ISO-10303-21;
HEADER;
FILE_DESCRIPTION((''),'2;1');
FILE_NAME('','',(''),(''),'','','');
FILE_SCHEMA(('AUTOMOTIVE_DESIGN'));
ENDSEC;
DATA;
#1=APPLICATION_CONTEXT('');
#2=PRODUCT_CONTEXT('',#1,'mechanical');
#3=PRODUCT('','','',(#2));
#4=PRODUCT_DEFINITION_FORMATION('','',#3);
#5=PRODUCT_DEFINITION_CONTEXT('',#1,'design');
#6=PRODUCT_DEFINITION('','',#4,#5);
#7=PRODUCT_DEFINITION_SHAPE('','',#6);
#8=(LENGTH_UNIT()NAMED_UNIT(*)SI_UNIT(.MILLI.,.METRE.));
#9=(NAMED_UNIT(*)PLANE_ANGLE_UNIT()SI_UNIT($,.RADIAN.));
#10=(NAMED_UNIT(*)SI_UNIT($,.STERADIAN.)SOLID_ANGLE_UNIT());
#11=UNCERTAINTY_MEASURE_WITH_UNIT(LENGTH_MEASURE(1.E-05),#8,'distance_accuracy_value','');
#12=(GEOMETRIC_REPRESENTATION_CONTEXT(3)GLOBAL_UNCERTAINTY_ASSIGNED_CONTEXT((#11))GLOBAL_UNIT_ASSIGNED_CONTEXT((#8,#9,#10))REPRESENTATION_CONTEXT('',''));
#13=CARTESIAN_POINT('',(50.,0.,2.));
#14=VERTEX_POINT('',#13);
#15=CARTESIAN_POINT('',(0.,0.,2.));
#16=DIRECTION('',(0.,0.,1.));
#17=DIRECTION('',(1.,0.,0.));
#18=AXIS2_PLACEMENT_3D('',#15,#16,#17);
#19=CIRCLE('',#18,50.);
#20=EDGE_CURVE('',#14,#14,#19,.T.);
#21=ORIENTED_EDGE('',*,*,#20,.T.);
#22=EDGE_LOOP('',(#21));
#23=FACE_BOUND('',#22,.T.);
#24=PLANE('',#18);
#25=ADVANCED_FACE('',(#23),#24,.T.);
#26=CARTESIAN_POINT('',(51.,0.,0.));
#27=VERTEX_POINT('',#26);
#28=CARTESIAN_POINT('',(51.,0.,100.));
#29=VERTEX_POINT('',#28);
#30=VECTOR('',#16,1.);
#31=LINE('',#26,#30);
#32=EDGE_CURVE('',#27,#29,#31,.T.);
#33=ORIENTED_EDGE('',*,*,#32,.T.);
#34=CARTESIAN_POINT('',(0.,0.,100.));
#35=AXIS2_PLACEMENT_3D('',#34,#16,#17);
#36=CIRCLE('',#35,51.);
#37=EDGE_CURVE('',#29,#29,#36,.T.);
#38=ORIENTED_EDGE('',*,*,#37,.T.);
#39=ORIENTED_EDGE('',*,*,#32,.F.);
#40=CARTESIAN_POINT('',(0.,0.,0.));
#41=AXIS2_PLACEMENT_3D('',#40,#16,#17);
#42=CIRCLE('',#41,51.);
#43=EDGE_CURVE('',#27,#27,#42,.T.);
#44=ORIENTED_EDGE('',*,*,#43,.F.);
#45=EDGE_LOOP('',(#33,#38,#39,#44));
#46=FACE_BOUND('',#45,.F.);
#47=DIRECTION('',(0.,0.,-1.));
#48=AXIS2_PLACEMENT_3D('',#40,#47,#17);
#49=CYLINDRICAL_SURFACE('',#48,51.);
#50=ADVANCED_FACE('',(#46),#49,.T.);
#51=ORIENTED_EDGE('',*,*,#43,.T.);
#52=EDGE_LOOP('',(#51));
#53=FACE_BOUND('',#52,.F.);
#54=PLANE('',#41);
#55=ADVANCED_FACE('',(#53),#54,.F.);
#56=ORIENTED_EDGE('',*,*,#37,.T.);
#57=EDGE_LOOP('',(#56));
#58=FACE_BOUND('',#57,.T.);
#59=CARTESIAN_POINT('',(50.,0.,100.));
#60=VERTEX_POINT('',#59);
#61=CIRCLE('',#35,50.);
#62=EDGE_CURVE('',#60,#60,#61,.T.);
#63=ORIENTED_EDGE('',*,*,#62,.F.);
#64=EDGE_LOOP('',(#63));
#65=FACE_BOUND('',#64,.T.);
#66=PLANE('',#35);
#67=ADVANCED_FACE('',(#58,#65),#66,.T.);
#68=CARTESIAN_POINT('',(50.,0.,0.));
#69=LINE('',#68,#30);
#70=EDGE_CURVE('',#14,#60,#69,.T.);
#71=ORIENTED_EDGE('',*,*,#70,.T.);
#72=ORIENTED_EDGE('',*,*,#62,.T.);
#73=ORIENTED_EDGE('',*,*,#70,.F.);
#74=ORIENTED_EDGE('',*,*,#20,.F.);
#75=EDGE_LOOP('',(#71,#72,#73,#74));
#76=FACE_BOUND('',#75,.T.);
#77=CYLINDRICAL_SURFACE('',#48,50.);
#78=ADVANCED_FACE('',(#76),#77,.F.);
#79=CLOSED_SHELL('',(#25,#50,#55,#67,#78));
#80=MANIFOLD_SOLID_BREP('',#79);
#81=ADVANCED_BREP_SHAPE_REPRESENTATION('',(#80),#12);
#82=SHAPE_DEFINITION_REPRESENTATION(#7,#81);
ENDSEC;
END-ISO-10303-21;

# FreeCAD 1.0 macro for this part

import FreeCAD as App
import Part
import Sketcher

V = App.Vector

doc = App.newDocument("Part")
params = doc.addObject("Spreadsheet::Sheet", "Params")
for row, (alias, value) in enumerate([
    ("sketch1_diameter", "102 mm"),
    ("sketch1_diameter2", "100 mm"),
    ("pad1_length", "100 mm"),
    ("sketch2_diameter", "100 mm"),
    ("pad2_length", "2 mm"),
], start=1):
    params.set(f"A{row}", alias)
    params.set(f"B{row}", "=" + value)
    params.setAlias(f"B{row}", alias)

body = doc.addObject("PartDesign::Body", "Body")

# Sketch on XY plane
sketch1 = body.newObject("Sketcher::SketchObject", "Sketch")
sketch1.AttachmentSupport = (doc.getObject("XY_Plane"), [""])
sketch1.MapMode = "FlatFace"
sketch1.addGeometry(Part.Circle(V(0, 0, 0), V(0, 0, 1), 51), False)
sketch1.addGeometry(Part.Circle(V(0, 0, 0), V(0, 0, 1), 50), False)
sketch1.addConstraint(Sketcher.Constraint("Coincident", 0, 3, -1, 1))
sketch1.addConstraint(Sketcher.Constraint("Coincident", 1, 3, -1, 1))
sketch1.addConstraint(Sketcher.Constraint("Diameter", 0, 102.0))
sketch1.addConstraint(Sketcher.Constraint("Diameter", 1, 100.0))
sketch1.setExpression("Constraints[2]", "Params.sketch1_diameter")
sketch1.setExpression("Constraints[3]", "Params.sketch1_diameter2")
pad1 = body.newObject("PartDesign::Pad", "Pad")
pad1.Profile = sketch1
pad1.setExpression("Length", "Params.pad1_length")

# Sketch on XY plane
sketch2 = body.newObject("Sketcher::SketchObject", "Sketch001")
sketch2.AttachmentSupport = (doc.getObject("XY_Plane"), [""])
sketch2.MapMode = "FlatFace"
sketch2.addGeometry(Part.Circle(V(0, 0, 0), V(0, 0, 1), 50), False)
sketch2.addConstraint(Sketcher.Constraint("Coincident", 0, 3, -1, 1))
sketch2.addConstraint(Sketcher.Constraint("Diameter", 0, 100.0))
sketch2.setExpression("Constraints[1]", "Params.sketch2_diameter")
pad2 = body.newObject("PartDesign::Pad", "Pad001")
pad2.Profile = sketch2
pad2.setExpression("Length", "Params.pad2_length")

doc.recompute()
